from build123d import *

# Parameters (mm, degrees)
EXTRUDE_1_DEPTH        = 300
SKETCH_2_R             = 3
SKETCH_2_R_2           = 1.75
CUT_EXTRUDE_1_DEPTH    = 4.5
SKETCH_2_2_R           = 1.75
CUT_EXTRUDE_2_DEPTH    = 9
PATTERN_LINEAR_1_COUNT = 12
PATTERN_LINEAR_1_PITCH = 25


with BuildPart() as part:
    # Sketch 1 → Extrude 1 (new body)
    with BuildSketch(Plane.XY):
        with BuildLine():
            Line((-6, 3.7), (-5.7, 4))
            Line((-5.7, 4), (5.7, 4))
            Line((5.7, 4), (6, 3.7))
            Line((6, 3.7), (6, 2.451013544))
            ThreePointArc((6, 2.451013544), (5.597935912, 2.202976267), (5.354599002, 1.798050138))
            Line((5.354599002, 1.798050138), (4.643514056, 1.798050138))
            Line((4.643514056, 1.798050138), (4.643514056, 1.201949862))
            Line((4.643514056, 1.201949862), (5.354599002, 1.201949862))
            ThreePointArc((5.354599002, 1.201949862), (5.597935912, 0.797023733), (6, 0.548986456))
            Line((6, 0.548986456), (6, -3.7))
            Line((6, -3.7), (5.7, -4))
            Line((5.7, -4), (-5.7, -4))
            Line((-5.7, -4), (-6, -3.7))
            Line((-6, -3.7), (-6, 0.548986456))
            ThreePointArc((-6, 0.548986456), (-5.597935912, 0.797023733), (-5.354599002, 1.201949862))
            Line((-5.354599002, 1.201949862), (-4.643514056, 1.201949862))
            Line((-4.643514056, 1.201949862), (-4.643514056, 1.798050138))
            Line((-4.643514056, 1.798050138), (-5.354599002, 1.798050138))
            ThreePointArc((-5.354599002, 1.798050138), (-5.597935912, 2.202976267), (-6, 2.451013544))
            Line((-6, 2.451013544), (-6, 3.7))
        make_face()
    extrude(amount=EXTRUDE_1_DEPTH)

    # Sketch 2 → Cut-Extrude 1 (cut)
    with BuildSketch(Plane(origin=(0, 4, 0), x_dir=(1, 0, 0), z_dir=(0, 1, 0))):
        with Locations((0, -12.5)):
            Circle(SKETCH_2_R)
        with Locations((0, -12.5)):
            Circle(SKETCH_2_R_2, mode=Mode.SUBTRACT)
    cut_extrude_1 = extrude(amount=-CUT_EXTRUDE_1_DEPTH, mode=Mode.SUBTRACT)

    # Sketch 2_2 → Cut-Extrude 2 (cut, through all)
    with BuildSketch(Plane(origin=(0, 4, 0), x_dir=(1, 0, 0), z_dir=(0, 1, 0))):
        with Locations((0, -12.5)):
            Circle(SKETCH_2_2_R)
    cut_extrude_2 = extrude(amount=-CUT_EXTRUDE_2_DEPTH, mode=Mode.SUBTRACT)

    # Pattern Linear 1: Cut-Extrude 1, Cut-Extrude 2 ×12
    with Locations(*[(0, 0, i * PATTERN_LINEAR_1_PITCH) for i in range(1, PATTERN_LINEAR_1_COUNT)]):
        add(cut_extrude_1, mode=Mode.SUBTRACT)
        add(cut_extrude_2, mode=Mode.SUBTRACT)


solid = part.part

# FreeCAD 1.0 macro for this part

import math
import FreeCAD as App
import Part
import Sketcher

V = App.Vector
Q = App.Units.Quantity

doc = App.newDocument("Part")
body = doc.addObject("PartDesign::Body", "Body")

# Sketch on XY plane
sketch1 = body.newObject("Sketcher::SketchObject", "Sketch")
sketch1.AttachmentSupport = (doc.getObject("XY_Plane"), [""])
sketch1.MapMode = "FlatFace"
sketch1.addGeometry(Part.LineSegment(V(-5.7, 4, 0), V(-6, 3.7, 0)), False)
sketch1.addGeometry(Part.LineSegment(V(-6, 3.7, 0), V(-6, 2.451014, 0)), False)
sketch1.addGeometry(Part.ArcOfCircle(Part.Circle(V(-6.309149, 1.5, 0), V(0, 0, 1), 1), math.radians(17.340528), math.radians(71.992034)), False)
sketch1.addGeometry(Part.LineSegment(V(-5.354599, 1.79805, 0), V(-4.643514, 1.79805, 0)), False)
sketch1.addGeometry(Part.LineSegment(V(-4.643514, 1.79805, 0), V(-4.643514, 1.20195, 0)), False)
sketch1.addGeometry(Part.LineSegment(V(-4.643514, 1.20195, 0), V(-5.354599, 1.20195, 0)), False)
sketch1.addGeometry(Part.ArcOfCircle(Part.Circle(V(-6.309149, 1.5, 0), V(0, 0, 1), 1), math.radians(-71.992034), math.radians(-17.340528)), False)
sketch1.addGeometry(Part.LineSegment(V(-6, 0.548986, 0), V(-6, -3.7, 0)), False)
sketch1.addGeometry(Part.LineSegment(V(-6, -3.7, 0), V(-5.7, -4, 0)), False)
sketch1.addGeometry(Part.LineSegment(V(-5.7, -4, 0), V(5.7, -4, 0)), False)
sketch1.addGeometry(Part.LineSegment(V(5.7, -4, 0), V(6, -3.7, 0)), False)
sketch1.addGeometry(Part.LineSegment(V(6, -3.7, 0), V(6, 0.548986, 0)), False)
sketch1.addGeometry(Part.ArcOfCircle(Part.Circle(V(6.309149, 1.5, 0), V(0, 0, 1), 1), math.radians(-162.659472), math.radians(-108.007966)), False)
sketch1.addGeometry(Part.LineSegment(V(5.354599, 1.20195, 0), V(4.643514, 1.20195, 0)), False)
sketch1.addGeometry(Part.LineSegment(V(4.643514, 1.20195, 0), V(4.643514, 1.79805, 0)), False)
sketch1.addGeometry(Part.LineSegment(V(4.643514, 1.79805, 0), V(5.354599, 1.79805, 0)), False)
sketch1.addGeometry(Part.ArcOfCircle(Part.Circle(V(6.309149, 1.5, 0), V(0, 0, 1), 1), math.radians(108.007966), math.radians(162.659472)), False)
sketch1.addGeometry(Part.LineSegment(V(6, 2.451014, 0), V(6, 3.7, 0)), False)
sketch1.addGeometry(Part.LineSegment(V(6, 3.7, 0), V(5.7, 4, 0)), False)
sketch1.addGeometry(Part.LineSegment(V(5.7, 4, 0), V(-5.7, 4, 0)), False)
sketch1.addConstraint(Sketcher.Constraint("Coincident", 0, 2, 1, 1))
sketch1.addConstraint(Sketcher.Constraint("Coincident", 1, 2, 2, 2))
sketch1.addConstraint(Sketcher.Constraint("Coincident", 2, 1, 3, 1))
sketch1.addConstraint(Sketcher.Constraint("Coincident", 3, 2, 4, 1))
sketch1.addConstraint(Sketcher.Constraint("Coincident", 4, 2, 5, 1))
sketch1.addConstraint(Sketcher.Constraint("Coincident", 5, 2, 6, 2))
sketch1.addConstraint(Sketcher.Constraint("Coincident", 6, 1, 7, 1))
sketch1.addConstraint(Sketcher.Constraint("Coincident", 7, 2, 8, 1))
sketch1.addConstraint(Sketcher.Constraint("Coincident", 8, 2, 9, 1))
sketch1.addConstraint(Sketcher.Constraint("Coincident", 9, 2, 10, 1))
sketch1.addConstraint(Sketcher.Constraint("Coincident", 10, 2, 11, 1))
sketch1.addConstraint(Sketcher.Constraint("Coincident", 11, 2, 12, 2))
sketch1.addConstraint(Sketcher.Constraint("Coincident", 12, 1, 13, 1))
sketch1.addConstraint(Sketcher.Constraint("Coincident", 13, 2, 14, 1))
sketch1.addConstraint(Sketcher.Constraint("Coincident", 14, 2, 15, 1))
sketch1.addConstraint(Sketcher.Constraint("Coincident", 15, 2, 16, 2))
sketch1.addConstraint(Sketcher.Constraint("Coincident", 16, 1, 17, 1))
sketch1.addConstraint(Sketcher.Constraint("Coincident", 17, 2, 18, 1))
sketch1.addConstraint(Sketcher.Constraint("Coincident", 18, 2, 19, 1))
sketch1.addConstraint(Sketcher.Constraint("Coincident", 19, 2, 0, 1))
sketch1.addConstraint(Sketcher.Constraint("Vertical", 1))
sketch1.addConstraint(Sketcher.Constraint("Horizontal", 3))
sketch1.addConstraint(Sketcher.Constraint("Vertical", 4))
sketch1.addConstraint(Sketcher.Constraint("Horizontal", 5))
sketch1.addConstraint(Sketcher.Constraint("Vertical", 7))
sketch1.addConstraint(Sketcher.Constraint("Horizontal", 9))
sketch1.addConstraint(Sketcher.Constraint("Vertical", 11))
sketch1.addConstraint(Sketcher.Constraint("Horizontal", 13))
sketch1.addConstraint(Sketcher.Constraint("Vertical", 14))
sketch1.addConstraint(Sketcher.Constraint("Horizontal", 15))
sketch1.addConstraint(Sketcher.Constraint("Vertical", 17))
sketch1.addConstraint(Sketcher.Constraint("Horizontal", 19))
sketch1.addConstraint(Sketcher.Constraint("Coincident", 6, 3, 2, 3))
sketch1.addConstraint(Sketcher.Constraint("Coincident", 16, 3, 12, 3))
sketch1.addConstraint(Sketcher.Constraint("Equal", 2, 6))
sketch1.addConstraint(Sketcher.Constraint("Equal", 6, 12))
sketch1.addConstraint(Sketcher.Constraint("Equal", 12, 16))
sketch1.addConstraint(Sketcher.Constraint("Symmetric", 0, 2, 10, 2, -1, 1))
sketch1.addConstraint(Sketcher.Constraint("Symmetric", 7, 2, 17, 2, -1, 1))
sketch1.addConstraint(Sketcher.Constraint("Symmetric", 8, 2, 18, 2, -1, 1))
sketch1.addConstraint(Sketcher.Constraint("Symmetric", 2, 3, 12, 3, -2))
sketch1.addConstraint(Sketcher.Constraint("Symmetric", 7, 2, 10, 2, -2))
sketch1.addConstraint(Sketcher.Constraint("Symmetric", 4, 2, 13, 2, -2))
sketch1.addConstraint(Sketcher.Constraint("Perpendicular", 0, 8))
sketch1.addConstraint(Sketcher.Constraint("Perpendicular", 8, 10))
sketch1.addConstraint(Sketcher.Constraint("Horizontal", 3, 2, 14, 2))
sketch1.addConstraint(Sketcher.Constraint("Vertical", 2, 1, 5, 2))
sketch1.addConstraint(Sketcher.Constraint("Vertical", 9, 2, 18, 2))
sketch1.addConstraint(Sketcher.Constraint("Radius", 2, Q("1 mm")))
sketch1.addConstraint(Sketcher.Constraint("DistanceX", 9, 1, 9, 2, Q("11.4 mm")))
sketch1.addConstraint(Sketcher.Constraint("DistanceX", 0, 2, -1, 1, Q("6 mm")))
sketch1.addConstraint(Sketcher.Constraint("DistanceY", 8, 2, -1, 1, Q("4 mm")))
sketch1.addConstraint(Sketcher.Constraint("DistanceY", -1, 1, 2, 3, Q("1.5 mm")))
sketch1.addConstraint(Sketcher.Constraint("DistanceY", 4, 2, 4, 1, Q("0.5961 mm")))
sketch1.addConstraint(Sketcher.Constraint("DistanceX", 2, 1, -1, 1, Q("5.354599 mm")))
sketch1.addConstraint(Sketcher.Constraint("DistanceX", 3, 1, 3, 2, Q("0.711085 mm")))
pad1 = body.newObject("PartDesign::Pad", "Pad")
pad1.Profile = sketch1
pad1.Length = 300

# Sketch on XZ plane
sketch2 = body.newObject("Sketcher::SketchObject", "Sketch001")
sketch2.AttachmentSupport = (doc.getObject("XZ_Plane"), [""])
sketch2.MapMode = "FlatFace"
sketch2.AttachmentOffset = App.Placement(V(0, 0, -4), App.Rotation())
sketch2.addGeometry(Part.Circle(V(0, 12.5, 0), V(0, 0, 1), 3), False)
sketch2.addGeometry(Part.Circle(V(0, 12.5, 0), V(0, 0, 1), 1.75), False)
sketch2.addConstraint(Sketcher.Constraint("Coincident", 1, 3, 0, 3))
sketch2.addConstraint(Sketcher.Constraint("PointOnObject", 0, 3, -2))
sketch2.addConstraint(Sketcher.Constraint("Diameter", 0, Q("6 mm")))
sketch2.addConstraint(Sketcher.Constraint("Diameter", 1, Q("3.5 mm")))
sketch2.addConstraint(Sketcher.Constraint("DistanceY", -1, 1, 0, 3, Q("12.5 mm")))
pocket1 = body.newObject("PartDesign::Pocket", "Pocket")
pocket1.Profile = sketch2
pocket1.Length = 4.5
pocket1.Reversed = True

# Sketch on XZ plane
sketch3 = body.newObject("Sketcher::SketchObject", "Sketch002")
sketch3.AttachmentSupport = (doc.getObject("XZ_Plane"), [""])
sketch3.MapMode = "FlatFace"
sketch3.AttachmentOffset = App.Placement(V(0, 0, -4), App.Rotation())
sketch3.addGeometry(Part.Circle(V(0, 12.5, 0), V(0, 0, 1), 1.75), False)
sketch3.addConstraint(Sketcher.Constraint("PointOnObject", 0, 3, -2))
sketch3.addConstraint(Sketcher.Constraint("Diameter", 0, Q("3.5 mm")))
sketch3.addConstraint(Sketcher.Constraint("DistanceY", -1, 1, 0, 3, Q("12.5 mm")))
pocket2 = body.newObject("PartDesign::Pocket", "Pocket001")
pocket2.Profile = sketch3
pocket2.Type = "ThroughAll"
pocket2.Reversed = True
doc.recompute()

linearpattern = body.newObject("PartDesign::LinearPattern", "LinearPattern")
linearpattern.Originals = [pocket1, pocket2]
linearpattern.Direction = (doc.getObject("Z_Axis"), [""])
linearpattern.Mode = "offset"
linearpattern.Offset = 25
linearpattern.Occurrences = 12
body.Tip = linearpattern

doc.recompute()
